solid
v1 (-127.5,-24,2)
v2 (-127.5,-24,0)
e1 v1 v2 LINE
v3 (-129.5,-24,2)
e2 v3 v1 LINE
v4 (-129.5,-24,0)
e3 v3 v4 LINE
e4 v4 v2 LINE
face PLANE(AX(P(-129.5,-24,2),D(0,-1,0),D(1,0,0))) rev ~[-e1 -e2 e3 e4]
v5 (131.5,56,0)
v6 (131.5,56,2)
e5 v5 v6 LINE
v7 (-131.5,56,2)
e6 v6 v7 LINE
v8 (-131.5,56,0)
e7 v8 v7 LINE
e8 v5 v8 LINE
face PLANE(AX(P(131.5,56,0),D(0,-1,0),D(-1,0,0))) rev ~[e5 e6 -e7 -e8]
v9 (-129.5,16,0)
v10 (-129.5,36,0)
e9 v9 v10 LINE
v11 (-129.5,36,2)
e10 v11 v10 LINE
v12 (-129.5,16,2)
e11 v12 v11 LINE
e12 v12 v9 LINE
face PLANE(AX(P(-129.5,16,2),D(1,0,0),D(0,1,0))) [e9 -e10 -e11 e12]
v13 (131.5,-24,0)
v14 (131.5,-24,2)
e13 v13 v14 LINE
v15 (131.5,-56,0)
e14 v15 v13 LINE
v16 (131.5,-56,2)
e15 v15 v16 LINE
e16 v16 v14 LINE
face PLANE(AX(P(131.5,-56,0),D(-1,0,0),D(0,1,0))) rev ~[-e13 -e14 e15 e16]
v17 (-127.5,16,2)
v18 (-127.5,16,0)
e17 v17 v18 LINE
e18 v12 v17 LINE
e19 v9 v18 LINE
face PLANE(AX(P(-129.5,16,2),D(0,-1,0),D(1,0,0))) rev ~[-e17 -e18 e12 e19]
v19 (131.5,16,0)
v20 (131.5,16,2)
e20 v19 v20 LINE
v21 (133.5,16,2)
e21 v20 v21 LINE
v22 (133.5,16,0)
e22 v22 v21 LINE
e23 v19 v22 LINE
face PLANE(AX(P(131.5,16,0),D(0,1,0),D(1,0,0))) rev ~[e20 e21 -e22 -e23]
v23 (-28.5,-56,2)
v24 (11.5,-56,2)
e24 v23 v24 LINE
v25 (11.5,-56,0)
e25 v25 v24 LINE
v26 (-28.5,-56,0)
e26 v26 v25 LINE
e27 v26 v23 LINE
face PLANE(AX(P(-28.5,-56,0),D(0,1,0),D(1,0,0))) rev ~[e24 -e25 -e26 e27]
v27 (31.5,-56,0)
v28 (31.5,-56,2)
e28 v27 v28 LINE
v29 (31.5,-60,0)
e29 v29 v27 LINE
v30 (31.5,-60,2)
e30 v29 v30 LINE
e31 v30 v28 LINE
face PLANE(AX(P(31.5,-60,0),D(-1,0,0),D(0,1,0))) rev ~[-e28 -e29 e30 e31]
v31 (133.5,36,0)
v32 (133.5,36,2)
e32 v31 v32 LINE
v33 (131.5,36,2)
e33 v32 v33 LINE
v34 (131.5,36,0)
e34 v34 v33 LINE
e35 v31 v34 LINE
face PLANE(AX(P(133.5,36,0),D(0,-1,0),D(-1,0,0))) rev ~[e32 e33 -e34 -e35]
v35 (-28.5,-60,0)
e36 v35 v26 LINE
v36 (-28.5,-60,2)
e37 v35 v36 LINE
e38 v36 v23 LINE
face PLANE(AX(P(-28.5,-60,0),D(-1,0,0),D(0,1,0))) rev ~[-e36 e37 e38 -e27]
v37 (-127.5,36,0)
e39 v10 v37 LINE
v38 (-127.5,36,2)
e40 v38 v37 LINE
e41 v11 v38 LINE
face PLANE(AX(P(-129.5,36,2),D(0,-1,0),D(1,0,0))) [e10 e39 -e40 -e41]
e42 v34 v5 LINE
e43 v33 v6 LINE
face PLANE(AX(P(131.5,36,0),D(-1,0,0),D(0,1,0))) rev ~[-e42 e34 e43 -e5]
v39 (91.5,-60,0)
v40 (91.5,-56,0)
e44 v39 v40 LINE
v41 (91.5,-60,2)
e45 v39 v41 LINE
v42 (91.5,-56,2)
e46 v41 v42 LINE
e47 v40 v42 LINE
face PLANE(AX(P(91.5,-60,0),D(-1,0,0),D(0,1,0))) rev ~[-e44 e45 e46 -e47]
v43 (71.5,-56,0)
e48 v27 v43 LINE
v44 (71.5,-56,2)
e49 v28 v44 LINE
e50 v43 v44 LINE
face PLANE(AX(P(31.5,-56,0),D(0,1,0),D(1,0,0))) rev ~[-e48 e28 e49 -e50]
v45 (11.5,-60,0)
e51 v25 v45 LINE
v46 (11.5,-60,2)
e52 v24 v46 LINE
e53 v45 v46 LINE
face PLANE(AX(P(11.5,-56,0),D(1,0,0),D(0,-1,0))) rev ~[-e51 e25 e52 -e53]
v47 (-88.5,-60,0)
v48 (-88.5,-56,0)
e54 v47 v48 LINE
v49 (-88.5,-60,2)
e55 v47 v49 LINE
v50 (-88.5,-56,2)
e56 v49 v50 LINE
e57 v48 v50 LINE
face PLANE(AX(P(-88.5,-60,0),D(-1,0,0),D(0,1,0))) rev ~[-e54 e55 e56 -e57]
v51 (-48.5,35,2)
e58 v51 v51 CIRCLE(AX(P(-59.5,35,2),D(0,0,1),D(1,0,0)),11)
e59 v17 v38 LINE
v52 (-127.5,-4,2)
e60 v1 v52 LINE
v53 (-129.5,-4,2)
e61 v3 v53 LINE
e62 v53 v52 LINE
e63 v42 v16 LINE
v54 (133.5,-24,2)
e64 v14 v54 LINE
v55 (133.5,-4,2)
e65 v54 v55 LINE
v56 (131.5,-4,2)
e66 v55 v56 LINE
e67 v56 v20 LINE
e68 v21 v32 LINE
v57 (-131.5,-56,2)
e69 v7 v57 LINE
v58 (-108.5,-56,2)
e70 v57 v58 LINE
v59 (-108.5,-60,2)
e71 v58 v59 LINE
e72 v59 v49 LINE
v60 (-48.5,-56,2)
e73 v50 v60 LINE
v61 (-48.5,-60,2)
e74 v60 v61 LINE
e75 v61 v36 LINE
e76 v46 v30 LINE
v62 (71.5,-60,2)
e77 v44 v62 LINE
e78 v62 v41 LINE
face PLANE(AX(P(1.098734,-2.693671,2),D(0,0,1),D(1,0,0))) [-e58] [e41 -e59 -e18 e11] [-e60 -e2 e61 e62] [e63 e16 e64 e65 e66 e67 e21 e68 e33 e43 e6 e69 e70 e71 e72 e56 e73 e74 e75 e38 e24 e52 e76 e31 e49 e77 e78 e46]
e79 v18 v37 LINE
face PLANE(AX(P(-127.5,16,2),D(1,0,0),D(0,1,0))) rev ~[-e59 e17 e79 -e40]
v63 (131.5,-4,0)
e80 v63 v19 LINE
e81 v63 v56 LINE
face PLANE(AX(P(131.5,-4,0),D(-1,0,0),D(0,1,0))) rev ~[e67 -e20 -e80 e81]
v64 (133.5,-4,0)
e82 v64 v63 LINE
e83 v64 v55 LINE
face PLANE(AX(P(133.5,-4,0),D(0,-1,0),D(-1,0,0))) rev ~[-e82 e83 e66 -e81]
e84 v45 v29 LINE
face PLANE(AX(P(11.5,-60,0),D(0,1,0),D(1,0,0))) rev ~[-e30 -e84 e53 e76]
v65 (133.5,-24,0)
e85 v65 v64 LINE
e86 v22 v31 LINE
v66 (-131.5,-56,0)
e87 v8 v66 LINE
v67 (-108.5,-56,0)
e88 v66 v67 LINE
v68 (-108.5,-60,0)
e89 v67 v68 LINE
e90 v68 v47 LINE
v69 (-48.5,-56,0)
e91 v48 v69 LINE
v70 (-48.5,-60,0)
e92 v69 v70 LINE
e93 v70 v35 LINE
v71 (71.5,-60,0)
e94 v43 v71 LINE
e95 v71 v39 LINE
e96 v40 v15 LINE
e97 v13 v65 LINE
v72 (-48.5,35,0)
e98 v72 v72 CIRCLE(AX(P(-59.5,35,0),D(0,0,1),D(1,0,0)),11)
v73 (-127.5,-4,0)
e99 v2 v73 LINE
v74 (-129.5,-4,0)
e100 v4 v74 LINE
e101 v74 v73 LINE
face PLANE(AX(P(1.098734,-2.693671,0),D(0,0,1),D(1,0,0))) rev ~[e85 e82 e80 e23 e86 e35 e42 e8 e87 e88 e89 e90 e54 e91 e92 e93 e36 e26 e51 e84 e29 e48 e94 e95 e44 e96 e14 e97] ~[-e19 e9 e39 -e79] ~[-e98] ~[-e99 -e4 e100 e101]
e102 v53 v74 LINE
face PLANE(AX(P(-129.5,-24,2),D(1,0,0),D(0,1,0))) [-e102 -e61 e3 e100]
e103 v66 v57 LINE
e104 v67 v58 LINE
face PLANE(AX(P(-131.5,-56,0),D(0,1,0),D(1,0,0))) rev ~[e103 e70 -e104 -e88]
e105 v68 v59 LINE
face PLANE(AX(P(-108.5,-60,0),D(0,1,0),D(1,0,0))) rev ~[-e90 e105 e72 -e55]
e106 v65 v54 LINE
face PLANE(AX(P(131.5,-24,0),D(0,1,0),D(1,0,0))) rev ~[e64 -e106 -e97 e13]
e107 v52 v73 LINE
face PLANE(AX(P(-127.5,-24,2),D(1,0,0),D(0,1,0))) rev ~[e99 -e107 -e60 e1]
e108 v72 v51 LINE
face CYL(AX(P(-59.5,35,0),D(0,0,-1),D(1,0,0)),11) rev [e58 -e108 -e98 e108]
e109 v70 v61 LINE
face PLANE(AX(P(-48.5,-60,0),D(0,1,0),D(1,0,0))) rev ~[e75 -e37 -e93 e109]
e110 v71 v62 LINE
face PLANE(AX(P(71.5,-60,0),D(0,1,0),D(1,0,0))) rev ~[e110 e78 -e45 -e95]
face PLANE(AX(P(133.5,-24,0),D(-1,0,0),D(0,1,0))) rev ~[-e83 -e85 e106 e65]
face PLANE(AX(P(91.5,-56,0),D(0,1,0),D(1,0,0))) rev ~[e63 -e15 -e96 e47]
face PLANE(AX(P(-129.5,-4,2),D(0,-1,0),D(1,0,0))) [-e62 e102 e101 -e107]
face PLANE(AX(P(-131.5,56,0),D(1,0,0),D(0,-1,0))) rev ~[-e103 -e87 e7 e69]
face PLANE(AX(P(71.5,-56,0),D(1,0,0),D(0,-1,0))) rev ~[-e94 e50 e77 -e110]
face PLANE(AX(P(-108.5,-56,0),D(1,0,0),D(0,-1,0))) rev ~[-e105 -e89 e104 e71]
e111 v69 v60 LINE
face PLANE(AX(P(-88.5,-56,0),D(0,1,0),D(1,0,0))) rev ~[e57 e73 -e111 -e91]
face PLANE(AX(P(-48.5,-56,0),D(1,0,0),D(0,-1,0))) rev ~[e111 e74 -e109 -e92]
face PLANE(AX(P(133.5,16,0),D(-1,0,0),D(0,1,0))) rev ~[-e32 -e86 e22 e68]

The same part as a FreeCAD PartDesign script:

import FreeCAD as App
import Part
import Sketcher

V = App.Vector


def add_polygon(sketch, points):
    """Adds a closed chain of lines whose ends are joined by coincident constraints."""
    first, n = sketch.GeometryCount, len(points)
    for a, b in zip(points, points[1:] + points[:1]):
        sketch.addGeometry(Part.LineSegment(App.Vector(*a, 0), App.Vector(*b, 0)), False)
    for i in range(n):
        sketch.addConstraint(Sketcher.Constraint("Coincident", first + i, 2, first + (i + 1) % n, 1))

doc = App.newDocument("Part")
body = doc.addObject("PartDesign::Body", "Body")

# Sketch on XY plane
sketch1 = body.newObject("Sketcher::SketchObject", "Sketch")
sketch1.AttachmentSupport = (doc.getObject("XY_Plane"), [""])
sketch1.MapMode = "FlatFace"
add_polygon(sketch1, [(11.5, -56), (11.5, -60), (31.5, -60), (31.5, -56), (71.5, -56), (71.5, -60), (91.5, -60), (91.5, -56), (131.5, -56), (131.5, -24), (133.5, -24), (133.5, -4), (131.5, -4), (131.5, 16), (133.5, 16), (133.5, 36), (131.5, 36), (131.5, 56), (-131.5, 56), (-131.5, -56), (-108.5, -56), (-108.5, -60), (-88.5, -60), (-88.5, -56), (-48.5, -56), (-48.5, -60), (-28.5, -60), (-28.5, -56)])  # lines 0-27
sketch1.addGeometry(Part.Circle(V(-59.5, 35, 0), V(0, 0, 1), 11), False)  # 28
sketch1.addConstraint(Sketcher.Constraint("Vertical", 0))
sketch1.addConstraint(Sketcher.Constraint("Horizontal", 1))
sketch1.addConstraint(Sketcher.Constraint("Vertical", 2))
sketch1.addConstraint(Sketcher.Constraint("Horizontal", 3))
sketch1.addConstraint(Sketcher.Constraint("Vertical", 4))
sketch1.addConstraint(Sketcher.Constraint("Horizontal", 5))
sketch1.addConstraint(Sketcher.Constraint("Vertical", 6))
sketch1.addConstraint(Sketcher.Constraint("Horizontal", 7))
sketch1.addConstraint(Sketcher.Constraint("Vertical", 8))
sketch1.addConstraint(Sketcher.Constraint("Horizontal", 9))
sketch1.addConstraint(Sketcher.Constraint("Vertical", 10))
sketch1.addConstraint(Sketcher.Constraint("Horizontal", 11))
sketch1.addConstraint(Sketcher.Constraint("Vertical", 12))
sketch1.addConstraint(Sketcher.Constraint("Horizontal", 13))
sketch1.addConstraint(Sketcher.Constraint("Vertical", 14))
sketch1.addConstraint(Sketcher.Constraint("Horizontal", 15))
sketch1.addConstraint(Sketcher.Constraint("Vertical", 16))
sketch1.addConstraint(Sketcher.Constraint("Horizontal", 17))
sketch1.addConstraint(Sketcher.Constraint("Vertical", 18))
sketch1.addConstraint(Sketcher.Constraint("Horizontal", 19))
sketch1.addConstraint(Sketcher.Constraint("Vertical", 20))
sketch1.addConstraint(Sketcher.Constraint("Horizontal", 21))
sketch1.addConstraint(Sketcher.Constraint("Vertical", 22))
sketch1.addConstraint(Sketcher.Constraint("Horizontal", 23))
sketch1.addConstraint(Sketcher.Constraint("Vertical", 24))
sketch1.addConstraint(Sketcher.Constraint("Horizontal", 25))
sketch1.addConstraint(Sketcher.Constraint("Vertical", 26))
sketch1.addConstraint(Sketcher.Constraint("Horizontal", 27))
sketch1.addConstraint(Sketcher.Constraint("Symmetric", 7, 2, 17, 2, -1, 1))
sketch1.addConstraint(Sketcher.Constraint("Symmetric", 16, 2, 18, 2, -1, 1))
sketch1.addConstraint(Sketcher.Constraint("Horizontal", 1, 2, 4, 2))
sketch1.addConstraint(Sketcher.Constraint("Horizontal", 3, 2, 6, 2))
sketch1.addConstraint(Sketcher.Constraint("Horizontal", 5, 2, 20, 2))
sketch1.addConstraint(Sketcher.Constraint("Horizontal", 19, 2, 22, 2))
sketch1.addConstraint(Sketcher.Constraint("Horizontal", 21, 2, 24, 2))
sketch1.addConstraint(Sketcher.Constraint("Horizontal", 23, 2, 26, 2))
sketch1.addConstraint(Sketcher.Constraint("Vertical", 8, 2, 11, 2))
sketch1.addConstraint(Sketcher.Constraint("Vertical", 10, 2, 13, 2))
sketch1.addConstraint(Sketcher.Constraint("Equal", 1, 5))
sketch1.addConstraint(Sketcher.Constraint("Equal", 3, 7))
sketch1.addConstraint(Sketcher.Constraint("Equal", 5, 21))
sketch1.addConstraint(Sketcher.Constraint("Equal", 7, 23))
sketch1.addConstraint(Sketcher.Constraint("Equal", 21, 25))
sketch1.addConstraint(Sketcher.Constraint("Equal", 23, 27))
sketch1.addConstraint(Sketcher.Constraint("Equal", 25, 10))
sketch1.addConstraint(Sketcher.Constraint("Equal", 10, 12))
sketch1.addConstraint(Sketcher.Constraint("Equal", 12, 14))
sketch1.addConstraint(Sketcher.Constraint("Equal", 14, 16))
sketch1.addConstraint(Sketcher.Constraint("Diameter", 28, 22.0))
sketch1.addConstraint(Sketcher.Constraint("DistanceX", 1, 1, 1, 2, 20.0))
sketch1.addConstraint(Sketcher.Constraint("DistanceX", 3, 1, 3, 2, 40.0))
sketch1.addConstraint(Sketcher.Constraint("DistanceX", 9, 1, 9, 2, 2.0))
sketch1.addConstraint(Sketcher.Constraint("DistanceX", 17, 2, 17, 1, 263.0))
sketch1.addConstraint(Sketcher.Constraint("DistanceY", 0, 2, 0, 1, 4.0))
sketch1.addConstraint(Sketcher.Constraint("DistanceY", 8, 1, 8, 2, 32.0))
sketch1.addConstraint(Sketcher.Constraint("DistanceY", -1, 1, 28, 3, 35.0))
sketch1.addConstraint(Sketcher.Constraint("DistanceX", 28, 3, 0, 2, 71.0))
pad1 = body.newObject("PartDesign::Pad", "Pad")
pad1.Profile = sketch1
pad1.Length = 2

# Sketch on XY plane
sketch2 = body.newObject("Sketcher::SketchObject", "Sketch001")
sketch2.AttachmentSupport = (doc.getObject("XY_Plane"), [""])
sketch2.MapMode = "FlatFace"
sketch2.AttachmentOffset = App.Placement(V(0, 0, 2), App.Rotation())
add_polygon(sketch2, [(-129.5, 36), (-129.5, 16), (-127.5, 16), (-127.5, 36)])  # lines 0-3
add_polygon(sketch2, [(-129.5, -4), (-129.5, -24), (-127.5, -24), (-127.5, -4)])  # lines 4-7
sketch2.addConstraint(Sketcher.Constraint("Vertical", 0))
sketch2.addConstraint(Sketcher.Constraint("Horizontal", 1))
sketch2.addConstraint(Sketcher.Constraint("Vertical", 2))
sketch2.addConstraint(Sketcher.Constraint("Horizontal", 3))
sketch2.addConstraint(Sketcher.Constraint("Vertical", 4))
sketch2.addConstraint(Sketcher.Constraint("Horizontal", 5))
sketch2.addConstraint(Sketcher.Constraint("Vertical", 6))
sketch2.addConstraint(Sketcher.Constraint("Horizontal", 7))
sketch2.addConstraint(Sketcher.Constraint("Vertical", 3, 2, 4, 2))
sketch2.addConstraint(Sketcher.Constraint("Vertical", 2, 2, 5, 2))
sketch2.addConstraint(Sketcher.Constraint("Equal", 2, 4))
sketch2.addConstraint(Sketcher.Constraint("DistanceX", 1, 1, 1, 2, 2.0))
sketch2.addConstraint(Sketcher.Constraint("DistanceY", 0, 2, 0, 1, 20.0))
sketch2.addConstraint(Sketcher.Constraint("DistanceY", -1, 1, 0, 2, 16.0))
sketch2.addConstraint(Sketcher.Constraint("DistanceY", 4, 2, -1, 1, 24.0))
sketch2.addConstraint(Sketcher.Constraint("DistanceX", 0, 2, -1, 1, 129.5))
pocket1 = body.newObject("PartDesign::Pocket", "Pocket")
pocket1.Profile = sketch2
pocket1.Length = 10

doc.recompute()
